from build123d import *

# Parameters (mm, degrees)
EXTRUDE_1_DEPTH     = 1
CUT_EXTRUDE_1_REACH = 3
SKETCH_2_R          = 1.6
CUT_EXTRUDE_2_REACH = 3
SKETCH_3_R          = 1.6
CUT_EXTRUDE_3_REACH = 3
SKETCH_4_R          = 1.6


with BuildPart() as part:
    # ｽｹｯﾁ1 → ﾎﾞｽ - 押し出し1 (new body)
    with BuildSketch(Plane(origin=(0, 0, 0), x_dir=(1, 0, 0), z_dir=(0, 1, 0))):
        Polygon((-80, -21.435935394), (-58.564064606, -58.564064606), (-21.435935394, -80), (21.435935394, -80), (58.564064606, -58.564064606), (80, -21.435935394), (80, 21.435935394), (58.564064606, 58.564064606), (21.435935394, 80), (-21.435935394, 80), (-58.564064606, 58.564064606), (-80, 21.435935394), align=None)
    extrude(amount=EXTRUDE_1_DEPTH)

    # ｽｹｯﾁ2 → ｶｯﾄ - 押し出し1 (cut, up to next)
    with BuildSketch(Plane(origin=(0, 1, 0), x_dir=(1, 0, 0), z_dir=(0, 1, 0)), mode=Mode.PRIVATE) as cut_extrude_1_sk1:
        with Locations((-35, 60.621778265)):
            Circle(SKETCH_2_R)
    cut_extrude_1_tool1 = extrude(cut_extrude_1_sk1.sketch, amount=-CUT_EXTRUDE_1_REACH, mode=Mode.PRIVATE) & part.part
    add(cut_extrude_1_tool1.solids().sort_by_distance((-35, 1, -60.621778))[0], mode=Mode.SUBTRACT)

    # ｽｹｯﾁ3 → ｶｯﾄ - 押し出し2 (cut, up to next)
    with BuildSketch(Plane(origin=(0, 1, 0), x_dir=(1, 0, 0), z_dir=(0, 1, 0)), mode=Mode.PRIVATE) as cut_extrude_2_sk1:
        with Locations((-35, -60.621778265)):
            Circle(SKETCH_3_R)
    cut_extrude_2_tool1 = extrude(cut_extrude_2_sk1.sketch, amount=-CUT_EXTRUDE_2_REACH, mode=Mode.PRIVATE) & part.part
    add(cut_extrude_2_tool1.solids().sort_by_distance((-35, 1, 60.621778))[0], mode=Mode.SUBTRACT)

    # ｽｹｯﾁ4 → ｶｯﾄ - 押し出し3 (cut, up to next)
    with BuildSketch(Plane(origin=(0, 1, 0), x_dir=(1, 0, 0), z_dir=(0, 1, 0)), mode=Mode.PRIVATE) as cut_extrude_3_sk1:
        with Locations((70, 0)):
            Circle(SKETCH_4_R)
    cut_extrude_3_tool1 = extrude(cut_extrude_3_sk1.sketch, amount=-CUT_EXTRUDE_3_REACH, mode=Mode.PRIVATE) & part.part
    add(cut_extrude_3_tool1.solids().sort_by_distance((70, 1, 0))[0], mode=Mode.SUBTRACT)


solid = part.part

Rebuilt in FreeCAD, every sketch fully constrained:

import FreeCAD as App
import Part
import Sketcher

V = App.Vector
Q = App.Units.Quantity

doc = App.newDocument("Part")
body = doc.addObject("PartDesign::Body", "Body")

sketch1 = body.newObject("Sketcher::SketchObject", "Sketch")
sketch1.AttachmentSupport = (doc.getObject("XZ_Plane"), [""])
sketch1.MapMode = "FlatFace"
sketch1.addGeometry(Part.LineSegment(V(-80, 21, 0), V(-59, 59, 0)), False)
sketch1.addGeometry(Part.LineSegment(V(-59, 59, 0), V(-21, 80, 0)), False)
sketch1.addGeometry(Part.LineSegment(V(-21, 80, 0), V(21, 80, 0)), False)
sketch1.addGeometry(Part.LineSegment(V(21, 80, 0), V(59, 59, 0)), False)
sketch1.addGeometry(Part.LineSegment(V(59, 59, 0), V(80, 21, 0)), False)
sketch1.addGeometry(Part.LineSegment(V(80, 21, 0), V(80, -21, 0)), False)
sketch1.addGeometry(Part.LineSegment(V(80, -21, 0), V(59, -59, 0)), False)
sketch1.addGeometry(Part.LineSegment(V(59, -59, 0), V(21, -80, 0)), False)
sketch1.addGeometry(Part.LineSegment(V(21, -80, 0), V(-21, -80, 0)), False)
sketch1.addGeometry(Part.LineSegment(V(-21, -80, 0), V(-59, -59, 0)), False)
sketch1.addGeometry(Part.LineSegment(V(-59, -59, 0), V(-80, -21, 0)), False)
sketch1.addGeometry(Part.LineSegment(V(-80, -21, 0), V(-80, 21, 0)), False)
sketch1.addConstraint(Sketcher.Constraint("Coincident", 0, 2, 1, 1))
sketch1.addConstraint(Sketcher.Constraint("Coincident", 1, 2, 2, 1))
sketch1.addConstraint(Sketcher.Constraint("Coincident", 2, 2, 3, 1))
sketch1.addConstraint(Sketcher.Constraint("Coincident", 3, 2, 4, 1))
sketch1.addConstraint(Sketcher.Constraint("Coincident", 4, 2, 5, 1))
sketch1.addConstraint(Sketcher.Constraint("Coincident", 5, 2, 6, 1))
sketch1.addConstraint(Sketcher.Constraint("Coincident", 6, 2, 7, 1))
sketch1.addConstraint(Sketcher.Constraint("Coincident", 7, 2, 8, 1))
sketch1.addConstraint(Sketcher.Constraint("Coincident", 8, 2, 9, 1))
sketch1.addConstraint(Sketcher.Constraint("Coincident", 9, 2, 10, 1))
sketch1.addConstraint(Sketcher.Constraint("Coincident", 10, 2, 11, 1))
sketch1.addConstraint(Sketcher.Constraint("Coincident", 11, 2, 0, 1))
sketch1.addConstraint(Sketcher.Constraint("Horizontal", 2))
sketch1.addConstraint(Sketcher.Constraint("Vertical", 5))
sketch1.addConstraint(Sketcher.Constraint("Horizontal", 8))
sketch1.addConstraint(Sketcher.Constraint("Vertical", 11))
sketch1.addConstraint(Sketcher.Constraint("Symmetric", 0, 2, 6, 2, -1, 1))
sketch1.addConstraint(Sketcher.Constraint("Symmetric", 1, 2, 7, 2, -1, 1))
sketch1.addConstraint(Sketcher.Constraint("Symmetric", 3, 2, 9, 2, -1, 1))
sketch1.addConstraint(Sketcher.Constraint("Symmetric", 4, 2, 10, 2, -1, 1))
sketch1.addConstraint(Sketcher.Constraint("Symmetric", 0, 2, 3, 2, -2))
sketch1.addConstraint(Sketcher.Constraint("Perpendicular", 0, 3))
sketch1.addConstraint(Sketcher.Constraint("Perpendicular", 1, 4))
sketch1.addConstraint(Sketcher.Constraint("Perpendicular", 3, 6))
sketch1.addConstraint(Sketcher.Constraint("Perpendicular", 6, 9))
sketch1.addConstraint(Sketcher.Constraint("Horizontal", 5, 2, 10, 2))
sketch1.addConstraint(Sketcher.Constraint("Equal", 8, 5))
sketch1.addConstraint(Sketcher.Constraint("Equal", 0, 1))
sketch1.addConstraint(Sketcher.Constraint("Angle", 0, Q("60 deg")))
sketch1.addConstraint(Sketcher.Constraint("DistanceY", -1, 1, 1, 2, Q("80 mm")))
sketch1.addConstraint(Sketcher.Constraint("DistanceX", 0, 2, 2, 2, Q("80 mm")))
pad1 = body.newObject("PartDesign::Pad", "Pad")
pad1.Profile = sketch1
pad1.Length = 1
pad1.Reversed = True

sketch2 = body.newObject("Sketcher::SketchObject", "Sketch001")
sketch2.AttachmentSupport = (doc.getObject("XZ_Plane"), [""])
sketch2.MapMode = "FlatFace"
sketch2.AttachmentOffset = App.Placement(V(0, 0, -1), App.Rotation())
sketch2.addGeometry(Part.Circle(V(-35, -60.6, 0), V(0, 0, 1), 1.6), False)
sketch2.addConstraint(Sketcher.Constraint("Diameter", 0, Q("3.2 mm")))
sketch2.addConstraint(Sketcher.Constraint("DistanceX", 0, 3, -1, 1, Q("35 mm")))
sketch2.addConstraint(Sketcher.Constraint("DistanceY", 0, 3, -1, 1, Q("60.621778 mm")))
pocket1 = body.newObject("PartDesign::Pocket", "Pocket")
pocket1.Profile = sketch2
pocket1.Type = "UpToFirst"
pocket1.Reversed = True

sketch3 = body.newObject("Sketcher::SketchObject", "Sketch002")
sketch3.AttachmentSupport = (doc.getObject("XZ_Plane"), [""])
sketch3.MapMode = "FlatFace"
sketch3.AttachmentOffset = App.Placement(V(0, 0, -1), App.Rotation())
sketch3.addGeometry(Part.Circle(V(-35, 60.6, 0), V(0, 0, 1), 1.6), False)
sketch3.addConstraint(Sketcher.Constraint("Diameter", 0, Q("3.2 mm")))
sketch3.addConstraint(Sketcher.Constraint("DistanceX", 0, 3, -1, 1, Q("35 mm")))
sketch3.addConstraint(Sketcher.Constraint("DistanceY", -1, 1, 0, 3, Q("60.621778 mm")))
pocket2 = body.newObject("PartDesign::Pocket", "Pocket001")
pocket2.Profile = sketch3
pocket2.Type = "UpToFirst"
pocket2.Reversed = True

sketch4 = body.newObject("Sketcher::SketchObject", "Sketch003")
sketch4.AttachmentSupport = (doc.getObject("XZ_Plane"), [""])
sketch4.MapMode = "FlatFace"
sketch4.AttachmentOffset = App.Placement(V(0, 0, -1), App.Rotation())
sketch4.addGeometry(Part.Circle(V(70, 0, 0), V(0, 0, 1), 1.6), False)
sketch4.addConstraint(Sketcher.Constraint("PointOnObject", 0, 3, -1))
sketch4.addConstraint(Sketcher.Constraint("Diameter", 0, Q("3.2 mm")))
sketch4.addConstraint(Sketcher.Constraint("DistanceX", -1, 1, 0, 3, Q("70 mm")))
pocket3 = body.newObject("PartDesign::Pocket", "Pocket002")
pocket3.Profile = sketch4
pocket3.Type = "UpToFirst"
pocket3.Reversed = True

doc.recompute()
